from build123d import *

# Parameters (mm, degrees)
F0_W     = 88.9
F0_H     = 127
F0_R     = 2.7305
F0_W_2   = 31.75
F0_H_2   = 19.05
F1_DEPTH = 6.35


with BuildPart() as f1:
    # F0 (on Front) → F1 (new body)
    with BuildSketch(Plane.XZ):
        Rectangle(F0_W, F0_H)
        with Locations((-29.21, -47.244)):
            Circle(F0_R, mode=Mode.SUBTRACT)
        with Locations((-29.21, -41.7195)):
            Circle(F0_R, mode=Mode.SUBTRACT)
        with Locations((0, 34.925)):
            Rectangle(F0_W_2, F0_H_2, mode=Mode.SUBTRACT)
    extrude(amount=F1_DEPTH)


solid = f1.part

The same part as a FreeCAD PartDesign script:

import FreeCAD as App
import Part
import Sketcher

V = App.Vector
Q = App.Units.Quantity


def add_polygon(sketch, points):
    """Adds a closed chain of lines whose ends are joined by coincident constraints."""
    first, n = sketch.GeometryCount, len(points)
    for a, b in zip(points, points[1:] + points[:1]):
        sketch.addGeometry(Part.LineSegment(App.Vector(*a, 0), App.Vector(*b, 0)), False)
    for i in range(n):
        sketch.addConstraint(Sketcher.Constraint("Coincident", first + i, 2, first + (i + 1) % n, 1))

doc = App.newDocument("Part")
body = doc.addObject("PartDesign::Body", "Body")

sketch1 = doc.addObject("Sketcher::SketchObject", "Sketch")
body.addObject(sketch1)
sketch1.AttachmentSupport = (doc.XZ_Plane, [""])
sketch1.MapMode = "FlatFace"
add_polygon(sketch1, [(-44.5, 63.5), (-44.5, -63.5), (44.5, -63.5), (44.5, 63.5)])
sketch1.addGeometry(Part.Circle(V(-29.2, -47.2, 0), V(0, 0, 1), 2.7), False)
sketch1.addGeometry(Part.Circle(V(-29.2, -41.7, 0), V(0, 0, 1), 2.7), False)
add_polygon(sketch1, [(15.9, 25.4), (-15.9, 25.4), (-15.9, 44.5), (15.9, 44.5)])
sketch1.addConstraint(Sketcher.Constraint("Vertical", 0))
sketch1.addConstraint(Sketcher.Constraint("Horizontal", 1))
sketch1.addConstraint(Sketcher.Constraint("Vertical", 2))
sketch1.addConstraint(Sketcher.Constraint("Horizontal", 3))
sketch1.addConstraint(Sketcher.Constraint("Horizontal", 6))
sketch1.addConstraint(Sketcher.Constraint("Vertical", 7))
sketch1.addConstraint(Sketcher.Constraint("Horizontal", 8))
sketch1.addConstraint(Sketcher.Constraint("Vertical", 9))
sketch1.addConstraint(Sketcher.Constraint("Equal", 4, 5))
sketch1.addConstraint(Sketcher.Constraint("Symmetric", 0, 2, 2, 2, -1, 1))
sketch1.addConstraint(Sketcher.Constraint("Vertical", 4, 3, 5, 3))
sketch1.addConstraint(Sketcher.Constraint("DistanceY", 0, 2, 0, 1, Q("5 in")))
sketch1.addConstraint(Sketcher.Constraint("Diameter", 4, Q("0.215 in")))
sketch1.addConstraint(Sketcher.Constraint("DistanceX", 1, 1, 1, 2, Q("3.5 in")))
sketch1.addConstraint(Sketcher.Constraint("DistanceY", -1, 1, 6, 2, Q("1 in")))
sketch1.addConstraint(Sketcher.Constraint("DistanceX", 6, 2, 6, 1, Q("1.25 in")))
sketch1.addConstraint(Sketcher.Constraint("DistanceY", 7, 1, 7, 2, Q("0.75 in")))
sketch1.addConstraint(Sketcher.Constraint("DistanceX", 0, 2, 4, 3, Q("0.6 in")))
sketch1.addConstraint(Sketcher.Constraint("DistanceY", 4, 3, -1, 1, Q("1.86 in")))
sketch1.addConstraint(Sketcher.Constraint("DistanceX", 6, 2, -1, 1, Q("0.625 in")))
sketch1.addConstraint(Sketcher.Constraint("DistanceY", 5, 3, -1, 1, Q("1.6425 in")))
pad1 = doc.addObject("PartDesign::Pad", "Pad")
body.addObject(pad1)
pad1.Profile = sketch1
pad1.Length = Q("0.25 in")

doc.recompute()
